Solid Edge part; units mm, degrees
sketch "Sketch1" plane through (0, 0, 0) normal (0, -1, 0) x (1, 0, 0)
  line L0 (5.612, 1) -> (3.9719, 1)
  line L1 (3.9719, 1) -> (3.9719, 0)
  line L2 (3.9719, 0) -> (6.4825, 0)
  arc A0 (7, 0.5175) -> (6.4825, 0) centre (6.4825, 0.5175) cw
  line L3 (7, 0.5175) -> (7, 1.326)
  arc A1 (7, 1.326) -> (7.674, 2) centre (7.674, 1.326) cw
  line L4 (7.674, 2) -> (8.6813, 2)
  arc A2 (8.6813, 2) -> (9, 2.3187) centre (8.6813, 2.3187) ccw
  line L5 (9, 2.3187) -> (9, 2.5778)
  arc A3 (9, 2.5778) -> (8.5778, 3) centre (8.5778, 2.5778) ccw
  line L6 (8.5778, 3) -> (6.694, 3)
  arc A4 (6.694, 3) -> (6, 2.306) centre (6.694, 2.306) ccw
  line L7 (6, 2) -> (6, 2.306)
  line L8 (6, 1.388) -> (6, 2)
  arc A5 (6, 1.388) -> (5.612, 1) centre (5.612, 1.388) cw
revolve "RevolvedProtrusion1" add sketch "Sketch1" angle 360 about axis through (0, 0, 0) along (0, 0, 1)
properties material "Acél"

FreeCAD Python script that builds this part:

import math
import FreeCAD as App
import Part
import Sketcher

doc = App.newDocument("Part")
body = doc.addObject("PartDesign::Body", "Body")

# Sketch on XZ plane
sketch1 = body.newObject("Sketcher::SketchObject", "Sketch")
sketch1.AttachmentSupport = (doc.getObject("XZ_Plane"), [""])
sketch1.MapMode = "FlatFace"
sketch1.addGeometry([
    Part.ArcOfCircle(Part.Circle(App.Vector(5.61, 1.39, 0), App.Vector(0, 0, 1), 0.39), math.radians(-90), math.radians(0)),  # 0
    Part.LineSegment(App.Vector(5.61, 1, 0), App.Vector(3.97, 1, 0)),  # 1
    Part.LineSegment(App.Vector(3.97, 1, 0), App.Vector(3.97, 0, 0)),  # 2
    Part.LineSegment(App.Vector(3.97, 0, 0), App.Vector(6.48, 0, 0)),  # 3
    Part.ArcOfCircle(Part.Circle(App.Vector(6.48, 0.52, 0), App.Vector(0, 0, 1), 0.52), math.radians(-90), math.radians(0)),  # 4
    Part.LineSegment(App.Vector(7, 0.52, 0), App.Vector(7, 1.33, 0)),  # 5
    Part.ArcOfCircle(Part.Circle(App.Vector(7.67, 1.33, 0), App.Vector(0, 0, 1), 0.67), math.radians(90), math.radians(180)),  # 6
    Part.LineSegment(App.Vector(7.67, 2, 0), App.Vector(8.68, 2, 0)),  # 7
    Part.ArcOfCircle(Part.Circle(App.Vector(8.68, 2.32, 0), App.Vector(0, 0, 1), 0.32), math.radians(-90), math.radians(0)),  # 8
    Part.LineSegment(App.Vector(9, 2.32, 0), App.Vector(9, 2.58, 0)),  # 9
    Part.ArcOfCircle(Part.Circle(App.Vector(8.58, 2.58, 0), App.Vector(0, 0, 1), 0.42), math.radians(0), math.radians(90)),  # 10
    Part.LineSegment(App.Vector(8.58, 3, 0), App.Vector(6.69, 3, 0)),  # 11
    Part.ArcOfCircle(Part.Circle(App.Vector(6.69, 2.31, 0), App.Vector(0, 0, 1), 0.69), math.radians(90), math.radians(180)),  # 12
    Part.LineSegment(App.Vector(6, 2.31, 0), App.Vector(6, 1.39, 0)),  # 13
], False)
sketch1.addConstraint([
    Sketcher.Constraint("Tangent", 0, 1, 1, 1),
    Sketcher.Constraint("Coincident", 1, 2, 2, 1),
    Sketcher.Constraint("Coincident", 2, 2, 3, 1),
    Sketcher.Constraint("Tangent", 3, 2, 4, 1),
    Sketcher.Constraint("Tangent", 4, 2, 5, 1),
    Sketcher.Constraint("Tangent", 5, 2, 6, 2),
    Sketcher.Constraint("Tangent", 6, 1, 7, 1),
    Sketcher.Constraint("Tangent", 7, 2, 8, 1),
    Sketcher.Constraint("Tangent", 8, 2, 9, 1),
    Sketcher.Constraint("Tangent", 9, 2, 10, 1),
    Sketcher.Constraint("Tangent", 10, 2, 11, 1),
    Sketcher.Constraint("Tangent", 11, 2, 12, 1),
    Sketcher.Constraint("Tangent", 12, 2, 13, 1),
    Sketcher.Constraint("Tangent", 13, 2, 0, 2),
    Sketcher.Constraint("Horizontal", 1),
    Sketcher.Constraint("Vertical", 2),
    Sketcher.Constraint("Horizontal", 3),
    Sketcher.Constraint("Vertical", 5),
    Sketcher.Constraint("Horizontal", 7),
    Sketcher.Constraint("Vertical", 9),
    Sketcher.Constraint("Horizontal", 11),
    Sketcher.Constraint("Vertical", 13),
    Sketcher.Constraint("PointOnObject", 2, 2, -1),
    Sketcher.Constraint("DistanceY", 2, 2, 2, 1, 1.0),
    Sketcher.Constraint("DistanceX", -1, 1, 4, 2, 7.0),
    Sketcher.Constraint("DistanceY", -1, 1, 6, 1, 2.0),
    Sketcher.Constraint("DistanceX", -1, 1, 8, 2, 9.0),
    Sketcher.Constraint("DistanceY", -1, 1, 10, 2, 3.0),
    Sketcher.Constraint("DistanceX", -1, 1, 12, 2, 6.0),
    Sketcher.Constraint("Radius", 0, 0.388),
    Sketcher.Constraint("Radius", 6, 0.674),
    Sketcher.Constraint("Radius", 12, 0.694),
    Sketcher.Constraint("DistanceX", 1, 2, 1, 1, 1.64),
    Sketcher.Constraint("Radius", 4, 0.5175),
    Sketcher.Constraint("Radius", 8, 0.3187),
    Sketcher.Constraint("Radius", 10, 0.4222),
])
revolution = body.newObject("PartDesign::Revolution", "Revolution")
revolution.Profile = sketch1
revolution.ReferenceAxis = (sketch1, ["V_Axis"])
revolution.Angle = 360

doc.recompute()
